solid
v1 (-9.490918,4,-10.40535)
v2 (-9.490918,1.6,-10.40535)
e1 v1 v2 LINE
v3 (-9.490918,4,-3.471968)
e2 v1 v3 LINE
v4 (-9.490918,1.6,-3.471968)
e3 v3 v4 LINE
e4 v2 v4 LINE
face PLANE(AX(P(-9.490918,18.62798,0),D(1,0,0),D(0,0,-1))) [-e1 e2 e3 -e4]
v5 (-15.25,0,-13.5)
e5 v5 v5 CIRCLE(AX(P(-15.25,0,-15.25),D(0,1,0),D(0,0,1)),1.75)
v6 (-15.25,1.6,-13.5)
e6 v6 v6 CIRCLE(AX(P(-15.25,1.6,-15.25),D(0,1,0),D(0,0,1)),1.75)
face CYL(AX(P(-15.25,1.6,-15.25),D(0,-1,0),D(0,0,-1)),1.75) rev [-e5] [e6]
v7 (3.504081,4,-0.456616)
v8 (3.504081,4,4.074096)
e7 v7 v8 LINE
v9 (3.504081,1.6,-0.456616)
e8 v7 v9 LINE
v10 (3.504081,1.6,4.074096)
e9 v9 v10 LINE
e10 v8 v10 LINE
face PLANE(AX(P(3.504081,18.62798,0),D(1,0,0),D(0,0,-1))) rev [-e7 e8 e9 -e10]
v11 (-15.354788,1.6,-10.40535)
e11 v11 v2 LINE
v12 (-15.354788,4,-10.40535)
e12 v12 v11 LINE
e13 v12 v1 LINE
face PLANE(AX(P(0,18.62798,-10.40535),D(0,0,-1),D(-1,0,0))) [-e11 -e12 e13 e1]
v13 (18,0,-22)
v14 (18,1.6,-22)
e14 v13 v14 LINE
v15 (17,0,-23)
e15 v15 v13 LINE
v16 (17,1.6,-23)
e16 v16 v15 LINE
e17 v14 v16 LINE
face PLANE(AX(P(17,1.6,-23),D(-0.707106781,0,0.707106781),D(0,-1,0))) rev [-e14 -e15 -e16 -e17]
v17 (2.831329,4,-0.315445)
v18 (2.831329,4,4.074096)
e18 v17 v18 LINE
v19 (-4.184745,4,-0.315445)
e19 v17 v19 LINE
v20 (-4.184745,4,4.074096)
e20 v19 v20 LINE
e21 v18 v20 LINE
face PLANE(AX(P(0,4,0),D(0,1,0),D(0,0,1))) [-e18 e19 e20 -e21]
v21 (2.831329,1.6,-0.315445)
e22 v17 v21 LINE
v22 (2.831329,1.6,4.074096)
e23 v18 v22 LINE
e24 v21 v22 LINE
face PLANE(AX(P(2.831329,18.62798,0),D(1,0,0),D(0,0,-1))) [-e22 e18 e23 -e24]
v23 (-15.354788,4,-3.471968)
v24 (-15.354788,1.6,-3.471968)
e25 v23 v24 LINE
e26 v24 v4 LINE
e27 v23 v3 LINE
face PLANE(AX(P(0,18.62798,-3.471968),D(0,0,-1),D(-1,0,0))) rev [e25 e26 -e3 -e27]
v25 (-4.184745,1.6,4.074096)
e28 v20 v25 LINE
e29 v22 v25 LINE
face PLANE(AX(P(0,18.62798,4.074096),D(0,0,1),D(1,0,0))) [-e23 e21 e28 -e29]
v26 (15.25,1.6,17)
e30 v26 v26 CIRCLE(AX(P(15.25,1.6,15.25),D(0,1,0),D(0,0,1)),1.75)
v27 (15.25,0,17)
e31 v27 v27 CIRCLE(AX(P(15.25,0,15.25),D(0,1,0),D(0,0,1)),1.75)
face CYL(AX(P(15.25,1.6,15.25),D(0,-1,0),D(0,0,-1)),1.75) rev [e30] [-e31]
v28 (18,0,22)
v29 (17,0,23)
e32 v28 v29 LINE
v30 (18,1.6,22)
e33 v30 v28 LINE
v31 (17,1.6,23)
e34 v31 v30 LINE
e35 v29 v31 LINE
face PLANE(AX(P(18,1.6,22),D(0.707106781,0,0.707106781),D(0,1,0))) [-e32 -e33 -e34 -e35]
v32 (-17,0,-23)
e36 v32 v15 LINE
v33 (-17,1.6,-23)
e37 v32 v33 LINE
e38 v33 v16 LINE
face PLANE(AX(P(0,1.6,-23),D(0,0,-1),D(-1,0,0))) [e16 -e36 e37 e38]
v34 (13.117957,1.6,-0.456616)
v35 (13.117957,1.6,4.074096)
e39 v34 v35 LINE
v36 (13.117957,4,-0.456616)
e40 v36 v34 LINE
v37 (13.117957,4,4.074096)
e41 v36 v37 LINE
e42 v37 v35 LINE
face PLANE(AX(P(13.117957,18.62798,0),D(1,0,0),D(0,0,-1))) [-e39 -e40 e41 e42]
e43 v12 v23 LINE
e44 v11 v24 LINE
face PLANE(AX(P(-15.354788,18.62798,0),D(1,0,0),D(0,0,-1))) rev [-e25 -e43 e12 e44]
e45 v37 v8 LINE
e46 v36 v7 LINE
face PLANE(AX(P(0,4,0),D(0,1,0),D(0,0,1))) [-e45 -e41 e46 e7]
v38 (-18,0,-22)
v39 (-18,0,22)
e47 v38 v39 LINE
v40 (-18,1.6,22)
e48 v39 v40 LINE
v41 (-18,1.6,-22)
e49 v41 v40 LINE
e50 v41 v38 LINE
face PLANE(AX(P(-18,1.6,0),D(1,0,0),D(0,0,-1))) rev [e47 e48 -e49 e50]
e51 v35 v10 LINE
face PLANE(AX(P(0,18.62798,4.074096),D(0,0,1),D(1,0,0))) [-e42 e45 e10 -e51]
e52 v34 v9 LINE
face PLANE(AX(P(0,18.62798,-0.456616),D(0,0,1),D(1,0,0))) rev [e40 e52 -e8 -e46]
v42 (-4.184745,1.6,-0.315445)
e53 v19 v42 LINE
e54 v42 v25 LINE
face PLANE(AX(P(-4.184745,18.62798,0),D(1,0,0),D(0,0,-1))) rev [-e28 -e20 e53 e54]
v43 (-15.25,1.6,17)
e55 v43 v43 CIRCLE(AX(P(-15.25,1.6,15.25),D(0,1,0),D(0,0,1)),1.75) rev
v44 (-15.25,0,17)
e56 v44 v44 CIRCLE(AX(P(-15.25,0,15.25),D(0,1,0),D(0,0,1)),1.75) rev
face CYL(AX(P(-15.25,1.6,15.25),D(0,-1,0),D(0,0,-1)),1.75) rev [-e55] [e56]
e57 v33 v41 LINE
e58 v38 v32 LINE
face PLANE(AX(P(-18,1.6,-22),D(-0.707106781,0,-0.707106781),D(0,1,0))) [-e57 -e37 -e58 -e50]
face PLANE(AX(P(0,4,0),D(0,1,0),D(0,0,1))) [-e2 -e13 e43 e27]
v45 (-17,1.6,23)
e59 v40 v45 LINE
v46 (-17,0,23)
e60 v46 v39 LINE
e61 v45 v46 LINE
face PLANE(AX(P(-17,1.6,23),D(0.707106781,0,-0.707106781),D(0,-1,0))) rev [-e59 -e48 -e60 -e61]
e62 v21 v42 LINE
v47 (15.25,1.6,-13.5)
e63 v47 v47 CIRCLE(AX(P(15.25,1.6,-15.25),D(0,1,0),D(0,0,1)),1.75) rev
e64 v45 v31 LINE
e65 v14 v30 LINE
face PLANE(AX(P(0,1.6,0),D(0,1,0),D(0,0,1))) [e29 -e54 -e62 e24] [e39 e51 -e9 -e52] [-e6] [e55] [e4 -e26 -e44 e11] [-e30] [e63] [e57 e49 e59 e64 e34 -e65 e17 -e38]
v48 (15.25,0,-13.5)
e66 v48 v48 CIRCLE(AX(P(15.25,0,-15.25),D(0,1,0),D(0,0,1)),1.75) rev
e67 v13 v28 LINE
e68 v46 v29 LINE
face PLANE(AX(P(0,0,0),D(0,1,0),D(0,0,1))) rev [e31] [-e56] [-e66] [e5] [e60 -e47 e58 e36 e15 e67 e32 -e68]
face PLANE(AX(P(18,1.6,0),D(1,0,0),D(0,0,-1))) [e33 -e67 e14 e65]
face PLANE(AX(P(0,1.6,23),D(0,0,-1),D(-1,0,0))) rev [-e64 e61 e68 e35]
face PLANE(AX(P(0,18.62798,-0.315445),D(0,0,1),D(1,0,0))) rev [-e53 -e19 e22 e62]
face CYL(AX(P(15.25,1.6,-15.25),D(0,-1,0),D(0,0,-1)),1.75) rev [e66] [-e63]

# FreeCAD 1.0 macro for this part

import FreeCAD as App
import Part
import Sketcher

V = App.Vector


def edges_at(feature, points):
    """Names of the edges that pass closest to the given points."""
    edges = feature.Shape.Edges
    near = lambda p: min(range(len(edges)), key=lambda i: edges[i].distToShape(Part.Vertex(*p))[0])
    return sorted({f"Edge{near(p) + 1}" for p in points})


def add_polygon(sketch, points):
    """Adds a closed chain of lines whose ends are joined by coincident constraints."""
    first, n = sketch.GeometryCount, len(points)
    for a, b in zip(points, points[1:] + points[:1]):
        sketch.addGeometry(Part.LineSegment(App.Vector(*a, 0), App.Vector(*b, 0)), False)
    for i in range(n):
        sketch.addConstraint(Sketcher.Constraint("Coincident", first + i, 2, first + (i + 1) % n, 1))

doc = App.newDocument("Part")
body = doc.addObject("PartDesign::Body", "Body")

sketch1 = doc.addObject("Sketcher::SketchObject", "Sketch")
body.addObject(sketch1)
sketch1.AttachmentSupport = (doc.XZ_Plane, [""])
sketch1.MapMode = "FlatFace"
add_polygon(sketch1, [(-18, -23), (-18, 23), (18, 23), (18, -23)])
sketch1.addGeometry(Part.Circle(V(15.2, -15.2, 0), V(0, 0, 1), 1.8), False)
sketch1.addGeometry(Part.Circle(V(-15.2, 15.2, 0), V(0, 0, 1), 1.8), False)
sketch1.addGeometry(Part.Circle(V(15.2, 15.2, 0), V(0, 0, 1), 1.8), False)
sketch1.addGeometry(Part.Circle(V(-15.2, -15.2, 0), V(0, 0, 1), 1.8), False)
sketch1.addConstraint([
    Sketcher.Constraint("Vertical", 0),
    Sketcher.Constraint("Horizontal", 1),
    Sketcher.Constraint("Vertical", 2),
    Sketcher.Constraint("Horizontal", 3),
    Sketcher.Constraint("Equal", 4, 5),
    Sketcher.Constraint("Equal", 5, 6),
    Sketcher.Constraint("Equal", 6, 7),
    Sketcher.Constraint("Symmetric", 4, 3, 5, 3, -1, 1),
    Sketcher.Constraint("Symmetric", 6, 3, 7, 3, -1, 1),
    Sketcher.Constraint("Symmetric", 0, 2, 2, 2, -1, 1),
    Sketcher.Constraint("Symmetric", 5, 3, 6, 3, -2),
    Sketcher.Constraint("Diameter", 4, 3.5),
    Sketcher.Constraint("DistanceX", 1, 1, 1, 2, 36.0),
    Sketcher.Constraint("DistanceY", 0, 1, 0, 2, 46.0),
    Sketcher.Constraint("DistanceX", 5, 3, 4, 3, 30.5),
    Sketcher.Constraint("DistanceY", 4, 3, 5, 3, 30.5),
])
pad1 = doc.addObject("PartDesign::Pad", "Pad")
body.addObject(pad1)
pad1.Profile = sketch1
pad1.Length = 1.6
pad1.Reversed = True

sketch2 = doc.addObject("Sketcher::SketchObject", "Sketch001")
body.addObject(sketch2)
sketch2.AttachmentSupport = (doc.XZ_Plane, [""])
sketch2.MapMode = "FlatFace"
sketch2.AttachmentOffset = App.Placement(V(0, 0, -1.6), App.Rotation())
add_polygon(sketch2, [(-15.4, -10.4), (-15.4, -3.5), (-9.5, -3.5), (-9.5, -10.4)])
add_polygon(sketch2, [(-4.2, -0.3), (-4.2, 4.1), (2.8, 4.1), (2.8, -0.3)])
add_polygon(sketch2, [(3.5, -0.5), (3.5, 4.1), (13.1, 4.1), (13.1, -0.5)])
sketch2.addConstraint([
    Sketcher.Constraint("Vertical", 0),
    Sketcher.Constraint("Horizontal", 1),
    Sketcher.Constraint("Vertical", 2),
    Sketcher.Constraint("Horizontal", 3),
    Sketcher.Constraint("Vertical", 4),
    Sketcher.Constraint("Horizontal", 5),
    Sketcher.Constraint("Vertical", 6),
    Sketcher.Constraint("Horizontal", 7),
    Sketcher.Constraint("Vertical", 8),
    Sketcher.Constraint("Horizontal", 9),
    Sketcher.Constraint("Vertical", 10),
    Sketcher.Constraint("Horizontal", 11),
    Sketcher.Constraint("Horizontal", 5, 2, 8, 2),
    Sketcher.Constraint("DistanceX", 1, 2, 8, 2, 12.994999),
    Sketcher.Constraint("DistanceX", 1, 1, 1, 2, 5.863871),
    Sketcher.Constraint("DistanceY", 4, 1, 4, 2, 4.389541),
    Sketcher.Constraint("DistanceX", 4, 2, 9, 2, 17.302702),
    Sketcher.Constraint("DistanceX", 5, 1, 5, 2, 7.016074),
    Sketcher.Constraint("DistanceX", 9, 1, 9, 2, 9.613876),
    Sketcher.Constraint("DistanceY", 0, 1, 0, 2, 6.933383),
    Sketcher.Constraint("DistanceY", 8, 1, 8, 2, 4.530713),
    Sketcher.Constraint("DistanceX", 0, 2, -1, 1, 15.354788),
    Sketcher.Constraint("DistanceY", 2, 2, -1, 1, 10.40535),
    Sketcher.Constraint("DistanceY", -1, 1, 4, 2, 4.074096),
])
pad2 = doc.addObject("PartDesign::Pad", "Pad001")
body.addObject(pad2)
pad2.Profile = sketch2
pad2.Length = 2.4
pad2.Reversed = True
doc.recompute()

chamfer = doc.addObject("PartDesign::Chamfer", "Chamfer")
body.addObject(chamfer)
chamfer.Base = (pad2, edges_at(pad2, [
    (-18, 0.8, -23),
    (18, 0.8, -23),
    (18, 0.8, 23),
    (-18, 0.8, 23),
]))
chamfer.Size = 1

doc.recompute()
